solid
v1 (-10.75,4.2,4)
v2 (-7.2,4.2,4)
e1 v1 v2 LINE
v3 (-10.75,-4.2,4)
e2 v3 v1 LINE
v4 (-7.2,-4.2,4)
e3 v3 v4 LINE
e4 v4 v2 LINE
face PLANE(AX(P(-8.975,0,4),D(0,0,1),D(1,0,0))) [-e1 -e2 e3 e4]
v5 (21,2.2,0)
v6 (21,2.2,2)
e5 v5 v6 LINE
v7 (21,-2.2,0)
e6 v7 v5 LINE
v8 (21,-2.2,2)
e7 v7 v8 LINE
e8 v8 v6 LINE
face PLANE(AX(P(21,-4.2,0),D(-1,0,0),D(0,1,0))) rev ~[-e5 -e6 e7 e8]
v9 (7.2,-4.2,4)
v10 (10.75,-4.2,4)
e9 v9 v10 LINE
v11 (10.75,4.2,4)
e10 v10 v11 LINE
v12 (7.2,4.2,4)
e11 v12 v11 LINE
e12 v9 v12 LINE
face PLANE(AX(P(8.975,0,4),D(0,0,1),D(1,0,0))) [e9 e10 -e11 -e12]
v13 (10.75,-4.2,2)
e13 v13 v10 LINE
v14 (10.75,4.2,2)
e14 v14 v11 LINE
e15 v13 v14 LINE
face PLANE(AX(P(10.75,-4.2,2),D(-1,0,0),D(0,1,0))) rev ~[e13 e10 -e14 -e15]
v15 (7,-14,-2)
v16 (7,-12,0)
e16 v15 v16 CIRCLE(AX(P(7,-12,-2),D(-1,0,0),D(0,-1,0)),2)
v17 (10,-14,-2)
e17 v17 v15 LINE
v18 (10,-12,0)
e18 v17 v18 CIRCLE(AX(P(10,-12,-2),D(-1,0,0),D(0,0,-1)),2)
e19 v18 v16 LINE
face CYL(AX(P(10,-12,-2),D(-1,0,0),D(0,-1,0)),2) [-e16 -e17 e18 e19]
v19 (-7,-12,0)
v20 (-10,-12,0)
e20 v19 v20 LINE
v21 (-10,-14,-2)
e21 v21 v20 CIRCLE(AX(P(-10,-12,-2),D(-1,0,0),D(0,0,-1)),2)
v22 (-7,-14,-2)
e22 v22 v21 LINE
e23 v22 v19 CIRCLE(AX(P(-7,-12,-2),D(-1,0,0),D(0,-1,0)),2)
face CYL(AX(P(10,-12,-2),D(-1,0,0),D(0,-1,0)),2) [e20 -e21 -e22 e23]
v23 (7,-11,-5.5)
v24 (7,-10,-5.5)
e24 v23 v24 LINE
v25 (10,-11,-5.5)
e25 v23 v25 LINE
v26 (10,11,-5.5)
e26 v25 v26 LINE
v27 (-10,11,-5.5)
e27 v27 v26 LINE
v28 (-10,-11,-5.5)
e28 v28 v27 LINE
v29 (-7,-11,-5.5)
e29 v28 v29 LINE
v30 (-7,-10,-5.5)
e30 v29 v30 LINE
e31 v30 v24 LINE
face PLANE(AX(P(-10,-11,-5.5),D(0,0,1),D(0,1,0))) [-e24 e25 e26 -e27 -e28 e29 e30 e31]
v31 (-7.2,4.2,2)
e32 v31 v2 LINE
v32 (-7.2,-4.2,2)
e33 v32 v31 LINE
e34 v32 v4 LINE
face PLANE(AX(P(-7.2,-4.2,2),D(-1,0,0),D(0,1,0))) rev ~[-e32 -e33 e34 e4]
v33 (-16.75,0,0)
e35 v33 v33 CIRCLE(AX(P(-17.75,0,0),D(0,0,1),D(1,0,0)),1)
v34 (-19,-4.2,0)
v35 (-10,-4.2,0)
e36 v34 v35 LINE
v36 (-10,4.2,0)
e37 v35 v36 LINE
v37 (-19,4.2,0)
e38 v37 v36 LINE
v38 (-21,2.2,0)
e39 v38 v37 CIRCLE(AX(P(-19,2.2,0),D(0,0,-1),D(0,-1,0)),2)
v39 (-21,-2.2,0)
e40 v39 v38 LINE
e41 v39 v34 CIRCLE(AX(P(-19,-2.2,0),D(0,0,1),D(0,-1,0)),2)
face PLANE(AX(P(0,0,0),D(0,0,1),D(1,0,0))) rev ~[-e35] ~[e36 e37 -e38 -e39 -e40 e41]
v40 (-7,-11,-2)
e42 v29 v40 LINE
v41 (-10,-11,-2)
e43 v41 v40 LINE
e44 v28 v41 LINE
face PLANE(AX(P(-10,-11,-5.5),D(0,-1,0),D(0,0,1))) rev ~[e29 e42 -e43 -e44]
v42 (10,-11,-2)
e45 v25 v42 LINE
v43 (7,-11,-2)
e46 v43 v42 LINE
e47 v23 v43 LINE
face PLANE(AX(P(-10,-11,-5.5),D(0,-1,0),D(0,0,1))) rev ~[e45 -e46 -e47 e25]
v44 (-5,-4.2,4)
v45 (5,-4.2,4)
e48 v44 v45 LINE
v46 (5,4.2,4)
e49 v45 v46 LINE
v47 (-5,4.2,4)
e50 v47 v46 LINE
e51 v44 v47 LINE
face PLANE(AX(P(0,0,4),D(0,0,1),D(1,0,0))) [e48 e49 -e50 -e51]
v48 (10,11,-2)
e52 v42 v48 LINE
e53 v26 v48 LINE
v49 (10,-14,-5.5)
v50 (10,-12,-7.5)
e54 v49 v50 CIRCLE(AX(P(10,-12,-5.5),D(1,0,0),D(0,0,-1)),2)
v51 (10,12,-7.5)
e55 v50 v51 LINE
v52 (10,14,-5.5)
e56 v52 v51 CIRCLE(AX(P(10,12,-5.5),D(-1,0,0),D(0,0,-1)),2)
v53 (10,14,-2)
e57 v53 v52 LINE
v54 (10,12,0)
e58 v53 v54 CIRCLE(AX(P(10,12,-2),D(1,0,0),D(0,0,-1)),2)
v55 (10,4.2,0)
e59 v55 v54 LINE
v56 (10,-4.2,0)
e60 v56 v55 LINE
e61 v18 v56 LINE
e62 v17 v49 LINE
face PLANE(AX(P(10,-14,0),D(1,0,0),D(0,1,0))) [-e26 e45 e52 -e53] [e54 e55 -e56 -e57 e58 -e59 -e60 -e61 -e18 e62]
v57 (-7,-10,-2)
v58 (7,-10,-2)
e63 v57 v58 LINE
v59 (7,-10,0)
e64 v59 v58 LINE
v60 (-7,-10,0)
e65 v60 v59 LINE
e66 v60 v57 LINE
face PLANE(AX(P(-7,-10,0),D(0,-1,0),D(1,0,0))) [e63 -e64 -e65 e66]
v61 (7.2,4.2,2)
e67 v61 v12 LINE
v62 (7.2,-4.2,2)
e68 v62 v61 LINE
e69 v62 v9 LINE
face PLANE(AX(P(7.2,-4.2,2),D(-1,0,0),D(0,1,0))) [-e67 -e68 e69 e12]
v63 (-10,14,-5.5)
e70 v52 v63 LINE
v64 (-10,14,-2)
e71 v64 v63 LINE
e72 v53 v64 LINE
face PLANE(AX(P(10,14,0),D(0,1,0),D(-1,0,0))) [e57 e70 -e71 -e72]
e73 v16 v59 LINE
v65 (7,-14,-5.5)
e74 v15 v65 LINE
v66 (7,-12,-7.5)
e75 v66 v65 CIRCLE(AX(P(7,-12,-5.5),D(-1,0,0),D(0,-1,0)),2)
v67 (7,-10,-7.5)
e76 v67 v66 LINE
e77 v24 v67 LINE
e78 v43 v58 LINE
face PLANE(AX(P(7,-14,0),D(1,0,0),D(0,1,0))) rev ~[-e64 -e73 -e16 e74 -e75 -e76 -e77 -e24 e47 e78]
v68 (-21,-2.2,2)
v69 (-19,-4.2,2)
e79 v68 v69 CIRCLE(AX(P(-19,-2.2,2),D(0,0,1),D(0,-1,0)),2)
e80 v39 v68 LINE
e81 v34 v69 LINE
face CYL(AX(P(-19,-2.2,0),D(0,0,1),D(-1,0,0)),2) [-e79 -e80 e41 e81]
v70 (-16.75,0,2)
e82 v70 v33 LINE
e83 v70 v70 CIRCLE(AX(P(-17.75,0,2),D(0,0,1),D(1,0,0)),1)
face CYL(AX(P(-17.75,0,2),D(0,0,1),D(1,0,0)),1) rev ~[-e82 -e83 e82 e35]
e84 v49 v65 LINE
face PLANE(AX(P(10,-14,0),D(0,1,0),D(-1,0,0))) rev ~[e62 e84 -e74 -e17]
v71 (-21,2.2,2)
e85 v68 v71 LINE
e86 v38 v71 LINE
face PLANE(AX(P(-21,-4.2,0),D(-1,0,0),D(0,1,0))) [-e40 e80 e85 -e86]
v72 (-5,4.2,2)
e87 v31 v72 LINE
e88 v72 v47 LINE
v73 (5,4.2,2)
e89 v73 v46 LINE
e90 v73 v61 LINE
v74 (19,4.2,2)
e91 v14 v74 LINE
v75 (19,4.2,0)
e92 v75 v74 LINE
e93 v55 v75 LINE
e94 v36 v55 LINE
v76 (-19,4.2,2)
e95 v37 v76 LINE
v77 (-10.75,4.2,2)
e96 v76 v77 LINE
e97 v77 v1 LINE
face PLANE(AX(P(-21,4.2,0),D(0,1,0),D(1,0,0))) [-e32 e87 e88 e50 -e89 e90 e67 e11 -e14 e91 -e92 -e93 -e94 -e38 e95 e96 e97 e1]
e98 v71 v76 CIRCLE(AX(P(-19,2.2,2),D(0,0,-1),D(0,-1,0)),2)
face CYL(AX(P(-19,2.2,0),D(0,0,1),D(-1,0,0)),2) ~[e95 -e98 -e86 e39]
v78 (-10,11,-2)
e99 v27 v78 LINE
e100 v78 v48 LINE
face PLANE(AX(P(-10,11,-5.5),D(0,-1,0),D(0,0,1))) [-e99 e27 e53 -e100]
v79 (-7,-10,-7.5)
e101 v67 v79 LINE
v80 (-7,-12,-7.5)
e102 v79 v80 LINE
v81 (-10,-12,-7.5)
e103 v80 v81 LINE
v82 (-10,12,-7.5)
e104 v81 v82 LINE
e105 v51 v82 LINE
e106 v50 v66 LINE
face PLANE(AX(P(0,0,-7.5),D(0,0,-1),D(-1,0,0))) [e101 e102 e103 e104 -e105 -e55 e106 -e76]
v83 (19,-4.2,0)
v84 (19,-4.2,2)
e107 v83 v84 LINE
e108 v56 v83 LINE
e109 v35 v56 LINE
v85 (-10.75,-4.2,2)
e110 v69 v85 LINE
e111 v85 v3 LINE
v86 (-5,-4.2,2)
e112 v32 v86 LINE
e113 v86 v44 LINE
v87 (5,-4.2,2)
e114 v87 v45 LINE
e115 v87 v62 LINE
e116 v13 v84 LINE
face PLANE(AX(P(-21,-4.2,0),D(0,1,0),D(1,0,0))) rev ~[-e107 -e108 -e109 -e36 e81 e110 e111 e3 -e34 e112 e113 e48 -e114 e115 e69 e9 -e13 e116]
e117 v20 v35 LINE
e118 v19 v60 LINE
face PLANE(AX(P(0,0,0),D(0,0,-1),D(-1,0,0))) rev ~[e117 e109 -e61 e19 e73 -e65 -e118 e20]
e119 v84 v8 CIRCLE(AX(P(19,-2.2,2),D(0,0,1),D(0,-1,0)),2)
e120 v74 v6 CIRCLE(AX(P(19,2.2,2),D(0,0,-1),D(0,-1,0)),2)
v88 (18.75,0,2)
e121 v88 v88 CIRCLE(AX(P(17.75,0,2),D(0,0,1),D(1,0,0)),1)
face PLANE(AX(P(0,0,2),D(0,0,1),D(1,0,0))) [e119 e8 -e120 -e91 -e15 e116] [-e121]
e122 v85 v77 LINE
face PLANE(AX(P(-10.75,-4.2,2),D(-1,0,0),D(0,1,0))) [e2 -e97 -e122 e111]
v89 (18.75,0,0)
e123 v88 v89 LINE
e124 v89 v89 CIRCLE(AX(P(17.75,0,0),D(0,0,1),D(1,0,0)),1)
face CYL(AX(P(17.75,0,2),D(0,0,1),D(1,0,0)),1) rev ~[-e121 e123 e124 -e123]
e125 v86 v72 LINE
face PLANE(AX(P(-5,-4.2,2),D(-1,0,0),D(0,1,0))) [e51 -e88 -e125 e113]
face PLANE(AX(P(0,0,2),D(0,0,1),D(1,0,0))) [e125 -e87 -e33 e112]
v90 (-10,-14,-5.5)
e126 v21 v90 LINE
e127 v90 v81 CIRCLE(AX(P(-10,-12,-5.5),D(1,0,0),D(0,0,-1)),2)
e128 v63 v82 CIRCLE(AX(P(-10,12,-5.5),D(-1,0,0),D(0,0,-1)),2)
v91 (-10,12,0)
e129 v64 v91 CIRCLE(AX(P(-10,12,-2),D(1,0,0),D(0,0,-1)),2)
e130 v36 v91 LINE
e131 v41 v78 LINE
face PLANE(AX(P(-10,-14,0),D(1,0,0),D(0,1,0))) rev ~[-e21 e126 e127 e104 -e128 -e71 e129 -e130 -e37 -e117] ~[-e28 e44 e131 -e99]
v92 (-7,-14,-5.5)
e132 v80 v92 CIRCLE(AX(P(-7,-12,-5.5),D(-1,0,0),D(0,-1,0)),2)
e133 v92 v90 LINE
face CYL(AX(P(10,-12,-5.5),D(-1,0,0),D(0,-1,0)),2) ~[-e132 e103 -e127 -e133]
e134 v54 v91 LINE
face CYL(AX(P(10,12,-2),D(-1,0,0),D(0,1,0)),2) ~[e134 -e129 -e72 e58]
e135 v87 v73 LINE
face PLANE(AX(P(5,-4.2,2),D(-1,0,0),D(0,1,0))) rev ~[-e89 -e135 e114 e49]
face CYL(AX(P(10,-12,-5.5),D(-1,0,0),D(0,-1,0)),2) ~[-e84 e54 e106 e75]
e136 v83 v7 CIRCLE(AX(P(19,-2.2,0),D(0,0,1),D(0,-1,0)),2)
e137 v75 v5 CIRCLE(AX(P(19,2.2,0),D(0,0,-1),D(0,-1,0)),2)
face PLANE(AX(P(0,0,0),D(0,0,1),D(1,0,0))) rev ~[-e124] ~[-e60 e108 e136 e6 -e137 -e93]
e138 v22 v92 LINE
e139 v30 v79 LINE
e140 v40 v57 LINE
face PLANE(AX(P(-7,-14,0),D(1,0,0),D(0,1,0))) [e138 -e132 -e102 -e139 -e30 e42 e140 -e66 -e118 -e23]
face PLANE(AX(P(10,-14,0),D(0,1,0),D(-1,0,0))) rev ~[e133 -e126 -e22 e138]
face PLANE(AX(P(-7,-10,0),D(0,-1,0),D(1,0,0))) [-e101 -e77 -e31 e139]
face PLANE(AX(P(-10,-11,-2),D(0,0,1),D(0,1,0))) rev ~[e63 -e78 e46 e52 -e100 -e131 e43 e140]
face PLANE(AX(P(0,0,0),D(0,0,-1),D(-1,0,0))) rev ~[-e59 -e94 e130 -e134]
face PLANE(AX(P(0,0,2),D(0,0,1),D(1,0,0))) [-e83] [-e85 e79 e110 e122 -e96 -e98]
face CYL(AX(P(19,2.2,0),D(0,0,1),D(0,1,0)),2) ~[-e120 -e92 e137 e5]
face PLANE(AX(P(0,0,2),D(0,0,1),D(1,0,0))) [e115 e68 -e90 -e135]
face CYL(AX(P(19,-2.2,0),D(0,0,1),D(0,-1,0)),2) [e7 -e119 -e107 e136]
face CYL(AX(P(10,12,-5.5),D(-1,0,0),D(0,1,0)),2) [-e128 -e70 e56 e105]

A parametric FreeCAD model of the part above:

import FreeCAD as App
import Part
import Sketcher

V = App.Vector
Q = App.Units.Quantity


def edges_at(feature, points):
    """Names of the edges that pass closest to the given points."""
    edges = feature.Shape.Edges
    near = lambda p: min(range(len(edges)), key=lambda i: edges[i].distToShape(Part.Vertex(*p))[0])
    return sorted({f"Edge{near(p) + 1}" for p in points})


def add_polygon(sketch, points):
    """Adds a closed chain of lines whose ends are joined by coincident constraints."""
    first, n = sketch.GeometryCount, len(points)
    for a, b in zip(points, points[1:] + points[:1]):
        sketch.addGeometry(Part.LineSegment(App.Vector(*a, 0), App.Vector(*b, 0)), False)
    for i in range(n):
        sketch.addConstraint(Sketcher.Constraint("Coincident", first + i, 2, first + (i + 1) % n, 1))

doc = App.newDocument("Part")
body = doc.addObject("PartDesign::Body", "Body")

sketch1 = body.newObject("Sketcher::SketchObject", "Sketch")
sketch1.AttachmentSupport = (doc.getObject("XY_Plane"), [""])
sketch1.MapMode = "FlatFace"
add_polygon(sketch1, [(-21, 4), (-21, -4), (21, -4), (21, 4)])
sketch1.addConstraint(Sketcher.Constraint("Vertical", 0))
sketch1.addConstraint(Sketcher.Constraint("Horizontal", 1))
sketch1.addConstraint(Sketcher.Constraint("Vertical", 2))
sketch1.addConstraint(Sketcher.Constraint("Horizontal", 3))
sketch1.addConstraint(Sketcher.Constraint("Symmetric", 0, 2, 2, 2, -1, 1))
sketch1.addConstraint(Sketcher.Constraint("DistanceX", 1, 1, 1, 2, Q("42 mm")))
sketch1.addConstraint(Sketcher.Constraint("DistanceY", 0, 2, 0, 1, Q("8.4 mm")))
pad1 = body.newObject("PartDesign::Pad", "Pad")
pad1.Profile = sketch1
pad1.Length = 2

sketch2 = body.newObject("Sketcher::SketchObject", "Sketch001")
sketch2.AttachmentSupport = (doc.getObject("XY_Plane"), [""])
sketch2.MapMode = "FlatFace"
sketch2.AttachmentOffset = App.Placement(V(0, 0, 2), App.Rotation())
add_polygon(sketch2, [(-10.8, 4.2), (-10.8, -4.2), (-7.2, -4.2), (-7.2, 4.2)])
add_polygon(sketch2, [(7.2, 4.2), (7.2, -4.2), (10.8, -4.2), (10.8, 4.2)])
add_polygon(sketch2, [(-5, 4.2), (-5, -4.2), (5, -4.2), (5, 4.2)])
sketch2.addConstraint(Sketcher.Constraint("Vertical", 0))
sketch2.addConstraint(Sketcher.Constraint("Horizontal", 1))
sketch2.addConstraint(Sketcher.Constraint("Vertical", 2))
sketch2.addConstraint(Sketcher.Constraint("Horizontal", 3))
sketch2.addConstraint(Sketcher.Constraint("Vertical", 4))
sketch2.addConstraint(Sketcher.Constraint("Horizontal", 5))
sketch2.addConstraint(Sketcher.Constraint("Vertical", 6))
sketch2.addConstraint(Sketcher.Constraint("Horizontal", 7))
sketch2.addConstraint(Sketcher.Constraint("Vertical", 8))
sketch2.addConstraint(Sketcher.Constraint("Horizontal", 9))
sketch2.addConstraint(Sketcher.Constraint("Vertical", 10))
sketch2.addConstraint(Sketcher.Constraint("Horizontal", 11))
sketch2.addConstraint(Sketcher.Constraint("Symmetric", 2, 2, 4, 2, -1, 1))
sketch2.addConstraint(Sketcher.Constraint("Symmetric", 0, 2, 6, 2, -1, 1))
sketch2.addConstraint(Sketcher.Constraint("Symmetric", 8, 2, 10, 2, -1, 1))
sketch2.addConstraint(Sketcher.Constraint("Horizontal", 1, 2, 4, 2))
sketch2.addConstraint(Sketcher.Constraint("Horizontal", 5, 2, 8, 2))
sketch2.addConstraint(Sketcher.Constraint("DistanceX", 9, 1, 9, 2, Q("10 mm")))
sketch2.addConstraint(Sketcher.Constraint("DistanceY", 0, 2, 0, 1, Q("8.4 mm")))
sketch2.addConstraint(Sketcher.Constraint("DistanceX", 1, 1, 1, 2, Q("3.55 mm")))
sketch2.addConstraint(Sketcher.Constraint("DistanceX", 1, 2, -1, 1, Q("7.2 mm")))
pad2 = body.newObject("PartDesign::Pad", "Pad001")
pad2.Profile = sketch2
pad2.Length = 2
doc.recompute()

fillet = body.newObject("PartDesign::Fillet", "Fillet")
fillet.Base = (pad2, edges_at(pad2, [
    (-21, 4.2, 1),
    (21, 4.2, 1),
    (21, -4.2, 1),
    (-21, -4.2, 1),
]))
fillet.Radius = 2

sketch3 = body.newObject("Sketcher::SketchObject", "Sketch002")
sketch3.AttachmentSupport = (doc.getObject("XY_Plane"), [""])
sketch3.MapMode = "FlatFace"
sketch3.AttachmentOffset = App.Placement(V(0, 0, 2), App.Rotation())
sketch3.addGeometry(Part.Circle(V(-17.8, 0, 0), V(0, 0, 1), 1), False)
sketch3.addGeometry(Part.Circle(V(17.8, 0, 0), V(0, 0, 1), 1), False)
sketch3.addConstraint(Sketcher.Constraint("Equal", 0, 1))
sketch3.addConstraint(Sketcher.Constraint("Symmetric", 0, 3, 1, 3, -1, 1))
sketch3.addConstraint(Sketcher.Constraint("PointOnObject", 0, 3, -1))
sketch3.addConstraint(Sketcher.Constraint("Diameter", 0, Q("2 mm")))
sketch3.addConstraint(Sketcher.Constraint("DistanceX", 0, 3, 1, 3, Q("35.5 mm")))
pocket1 = body.newObject("PartDesign::Pocket", "Pocket")
pocket1.Profile = sketch3
pocket1.Length = 2

sketch4 = body.newObject("Sketcher::SketchObject", "Sketch003")
sketch4.AttachmentSupport = (doc.getObject("XY_Plane"), [""])
sketch4.MapMode = "FlatFace"
add_polygon(sketch4, [(10, 14), (10, -14), (-10, -14), (-10, 14)])
sketch4.addConstraint(Sketcher.Constraint("Vertical", 0))
sketch4.addConstraint(Sketcher.Constraint("Horizontal", 1))
sketch4.addConstraint(Sketcher.Constraint("Vertical", 2))
sketch4.addConstraint(Sketcher.Constraint("Horizontal", 3))
sketch4.addConstraint(Sketcher.Constraint("Symmetric", 0, 2, 2, 2, -1, 1))
sketch4.addConstraint(Sketcher.Constraint("DistanceX", 1, 2, 1, 1, Q("20 mm")))
sketch4.addConstraint(Sketcher.Constraint("DistanceY", 0, 2, 0, 1, Q("28 mm")))
pad3 = body.newObject("PartDesign::Pad", "Pad002")
pad3.Profile = sketch4
pad3.Length = 7.5
pad3.Reversed = True
doc.recompute()

fillet2 = body.newObject("PartDesign::Fillet", "Fillet001")
fillet2.Base = (pad3, edges_at(pad3, [
    (0, 14, 0),
    (0, -14, 0),
    (0, 14, -7.5),
    (0, -14, -7.5),
]))
fillet2.Radius = 2

sketch5 = body.newObject("Sketcher::SketchObject", "Sketch004")
sketch5.AttachmentSupport = (doc.getObject("YZ_Plane"), [""])
sketch5.MapMode = "FlatFace"
sketch5.AttachmentOffset = App.Placement(V(0, 0, -10), App.Rotation())
add_polygon(sketch5, [(11, -5.5), (-11, -5.5), (-11, -2), (11, -2)])
sketch5.addConstraint(Sketcher.Constraint("Horizontal", 0))
sketch5.addConstraint(Sketcher.Constraint("Vertical", 1))
sketch5.addConstraint(Sketcher.Constraint("Horizontal", 2))
sketch5.addConstraint(Sketcher.Constraint("Vertical", 3))
sketch5.addConstraint(Sketcher.Constraint("DistanceX", 0, 2, 0, 1, Q("22 mm")))
sketch5.addConstraint(Sketcher.Constraint("DistanceY", 1, 1, 1, 2, Q("3.5 mm")))
sketch5.addConstraint(Sketcher.Constraint("DistanceX", 0, 2, -1, 1, Q("11 mm")))
sketch5.addConstraint(Sketcher.Constraint("DistanceY", 1, 2, -1, 1, Q("2 mm")))
pocket2 = body.newObject("PartDesign::Pocket", "Pocket001")
pocket2.Profile = sketch5
pocket2.Length = 20
pocket2.Reversed = True

sketch6 = body.newObject("Sketcher::SketchObject", "Sketch005")
sketch6.AttachmentSupport = (doc.getObject("XY_Plane"), [""])
sketch6.MapMode = "FlatFace"
add_polygon(sketch6, [(-7, -10), (-7, -14), (7, -14), (7, -10)])
sketch6.addConstraint(Sketcher.Constraint("Vertical", 0))
sketch6.addConstraint(Sketcher.Constraint("Horizontal", 1))
sketch6.addConstraint(Sketcher.Constraint("Vertical", 2))
sketch6.addConstraint(Sketcher.Constraint("Horizontal", 3))
sketch6.addConstraint(Sketcher.Constraint("DistanceX", 1, 1, 1, 2, Q("14 mm")))
sketch6.addConstraint(Sketcher.Constraint("DistanceY", 0, 2, 0, 1, Q("4 mm")))
sketch6.addConstraint(Sketcher.Constraint("DistanceX", 0, 2, -1, 1, Q("7 mm")))
sketch6.addConstraint(Sketcher.Constraint("DistanceY", 0, 2, -1, 1, Q("14 mm")))
pocket3 = body.newObject("PartDesign::Pocket", "Pocket002")
pocket3.Profile = sketch6
pocket3.Length = 10

doc.recompute()
